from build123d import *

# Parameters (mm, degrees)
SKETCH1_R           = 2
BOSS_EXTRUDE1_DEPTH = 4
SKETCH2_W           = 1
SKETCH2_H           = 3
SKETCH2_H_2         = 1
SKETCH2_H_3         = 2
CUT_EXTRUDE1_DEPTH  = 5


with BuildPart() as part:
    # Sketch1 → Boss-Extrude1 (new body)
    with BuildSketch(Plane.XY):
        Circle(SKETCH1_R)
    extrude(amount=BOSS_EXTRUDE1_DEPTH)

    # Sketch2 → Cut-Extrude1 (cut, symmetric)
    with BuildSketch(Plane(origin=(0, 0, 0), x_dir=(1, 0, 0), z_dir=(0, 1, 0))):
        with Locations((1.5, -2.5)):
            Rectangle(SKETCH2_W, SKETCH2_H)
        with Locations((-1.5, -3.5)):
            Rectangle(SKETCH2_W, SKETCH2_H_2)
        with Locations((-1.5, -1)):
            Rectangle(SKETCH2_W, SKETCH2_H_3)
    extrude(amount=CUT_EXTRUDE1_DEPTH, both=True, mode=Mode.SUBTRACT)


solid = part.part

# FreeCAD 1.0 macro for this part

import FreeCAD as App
import Part
import Sketcher
from FreeCAD import Vector

doc = App.newDocument("Part")
body = doc.addObject("PartDesign::Body", "Body")

# Sketch on XY plane
sketch1 = body.newObject("Sketcher::SketchObject", "Sketch")
sketch1.AttachmentSupport = (doc.getObject("XY_Plane"), [""])
sketch1.MapMode = "FlatFace"
sketch1.addGeometry(Part.Circle(Vector(0, 0, 0), Vector(0, 0, 1), 2), False)
sketch1.addConstraint([
    Sketcher.Constraint("Coincident", 0, 3, -1, 1),
    Sketcher.Constraint("Diameter", 0, 4.0),
])
pad1 = body.newObject("PartDesign::Pad", "Pad")
pad1.Profile = sketch1
pad1.Length = 4

# Sketch on XZ plane
sketch2 = body.newObject("Sketcher::SketchObject", "Sketch001")
sketch2.AttachmentSupport = (doc.getObject("XZ_Plane"), [""])
sketch2.MapMode = "FlatFace"
sketch2.addGeometry([
    Part.LineSegment(Vector(1, 1, 0), Vector(1, 4, 0)),  # 0
    Part.LineSegment(Vector(1, 4, 0), Vector(2, 4, 0)),  # 1
    Part.LineSegment(Vector(2, 4, 0), Vector(2, 1, 0)),  # 2
    Part.LineSegment(Vector(2, 1, 0), Vector(1, 1, 0)),  # 3
    Part.LineSegment(Vector(-2, 3, 0), Vector(-2, 4, 0)),  # 4
    Part.LineSegment(Vector(-2, 4, 0), Vector(-1, 4, 0)),  # 5
    Part.LineSegment(Vector(-1, 4, 0), Vector(-1, 3, 0)),  # 6
    Part.LineSegment(Vector(-1, 3, 0), Vector(-2, 3, 0)),  # 7
    Part.LineSegment(Vector(-2, 0, 0), Vector(-2, 2, 0)),  # 8
    Part.LineSegment(Vector(-2, 2, 0), Vector(-1, 2, 0)),  # 9
    Part.LineSegment(Vector(-1, 2, 0), Vector(-1, 0, 0)),  # 10
    Part.LineSegment(Vector(-1, 0, 0), Vector(-2, 0, 0)),  # 11
], False)
sketch2.addConstraint([
    Sketcher.Constraint("Coincident", 0, 2, 1, 1),
    Sketcher.Constraint("Coincident", 1, 2, 2, 1),
    Sketcher.Constraint("Coincident", 2, 2, 3, 1),
    Sketcher.Constraint("Coincident", 3, 2, 0, 1),
    Sketcher.Constraint("Coincident", 4, 2, 5, 1),
    Sketcher.Constraint("Coincident", 5, 2, 6, 1),
    Sketcher.Constraint("Coincident", 6, 2, 7, 1),
    Sketcher.Constraint("Coincident", 7, 2, 4, 1),
    Sketcher.Constraint("Coincident", 8, 2, 9, 1),
    Sketcher.Constraint("Coincident", 9, 2, 10, 1),
    Sketcher.Constraint("Coincident", 10, 2, 11, 1),
    Sketcher.Constraint("Coincident", 11, 2, 8, 1),
    Sketcher.Constraint("Vertical", 0),
    Sketcher.Constraint("Horizontal", 1),
    Sketcher.Constraint("Vertical", 2),
    Sketcher.Constraint("Horizontal", 3),
    Sketcher.Constraint("Vertical", 4),
    Sketcher.Constraint("Horizontal", 5),
    Sketcher.Constraint("Vertical", 6),
    Sketcher.Constraint("Horizontal", 7),
    Sketcher.Constraint("Vertical", 8),
    Sketcher.Constraint("Horizontal", 9),
    Sketcher.Constraint("Vertical", 10),
    Sketcher.Constraint("Horizontal", 11),
    Sketcher.Constraint("Symmetric", 1, 2, 4, 2, -2),
    Sketcher.Constraint("PointOnObject", 10, 2, -1),
    Sketcher.Constraint("Vertical", 7, 2, 8, 2),
    Sketcher.Constraint("Vertical", 6, 2, 9, 2),
    Sketcher.Constraint("Equal", 3, 5),
    Sketcher.Constraint("Equal", 11, 4),
    Sketcher.Constraint("DistanceX", 1, 1, 1, 2, 1.0),
    Sketcher.Constraint("DistanceY", 0, 1, 0, 2, 3.0),
    Sketcher.Constraint("DistanceY", 8, 1, 8, 2, 2.0),
    Sketcher.Constraint("DistanceX", -1, 1, 0, 2, 1.0),
    Sketcher.Constraint("DistanceY", -1, 1, 0, 2, 4.0),
])
pocket1 = body.newObject("PartDesign::Pocket", "Pocket")
pocket1.Profile = sketch2
pocket1.Length = 10
pocket1.Midplane = True

doc.recompute()
